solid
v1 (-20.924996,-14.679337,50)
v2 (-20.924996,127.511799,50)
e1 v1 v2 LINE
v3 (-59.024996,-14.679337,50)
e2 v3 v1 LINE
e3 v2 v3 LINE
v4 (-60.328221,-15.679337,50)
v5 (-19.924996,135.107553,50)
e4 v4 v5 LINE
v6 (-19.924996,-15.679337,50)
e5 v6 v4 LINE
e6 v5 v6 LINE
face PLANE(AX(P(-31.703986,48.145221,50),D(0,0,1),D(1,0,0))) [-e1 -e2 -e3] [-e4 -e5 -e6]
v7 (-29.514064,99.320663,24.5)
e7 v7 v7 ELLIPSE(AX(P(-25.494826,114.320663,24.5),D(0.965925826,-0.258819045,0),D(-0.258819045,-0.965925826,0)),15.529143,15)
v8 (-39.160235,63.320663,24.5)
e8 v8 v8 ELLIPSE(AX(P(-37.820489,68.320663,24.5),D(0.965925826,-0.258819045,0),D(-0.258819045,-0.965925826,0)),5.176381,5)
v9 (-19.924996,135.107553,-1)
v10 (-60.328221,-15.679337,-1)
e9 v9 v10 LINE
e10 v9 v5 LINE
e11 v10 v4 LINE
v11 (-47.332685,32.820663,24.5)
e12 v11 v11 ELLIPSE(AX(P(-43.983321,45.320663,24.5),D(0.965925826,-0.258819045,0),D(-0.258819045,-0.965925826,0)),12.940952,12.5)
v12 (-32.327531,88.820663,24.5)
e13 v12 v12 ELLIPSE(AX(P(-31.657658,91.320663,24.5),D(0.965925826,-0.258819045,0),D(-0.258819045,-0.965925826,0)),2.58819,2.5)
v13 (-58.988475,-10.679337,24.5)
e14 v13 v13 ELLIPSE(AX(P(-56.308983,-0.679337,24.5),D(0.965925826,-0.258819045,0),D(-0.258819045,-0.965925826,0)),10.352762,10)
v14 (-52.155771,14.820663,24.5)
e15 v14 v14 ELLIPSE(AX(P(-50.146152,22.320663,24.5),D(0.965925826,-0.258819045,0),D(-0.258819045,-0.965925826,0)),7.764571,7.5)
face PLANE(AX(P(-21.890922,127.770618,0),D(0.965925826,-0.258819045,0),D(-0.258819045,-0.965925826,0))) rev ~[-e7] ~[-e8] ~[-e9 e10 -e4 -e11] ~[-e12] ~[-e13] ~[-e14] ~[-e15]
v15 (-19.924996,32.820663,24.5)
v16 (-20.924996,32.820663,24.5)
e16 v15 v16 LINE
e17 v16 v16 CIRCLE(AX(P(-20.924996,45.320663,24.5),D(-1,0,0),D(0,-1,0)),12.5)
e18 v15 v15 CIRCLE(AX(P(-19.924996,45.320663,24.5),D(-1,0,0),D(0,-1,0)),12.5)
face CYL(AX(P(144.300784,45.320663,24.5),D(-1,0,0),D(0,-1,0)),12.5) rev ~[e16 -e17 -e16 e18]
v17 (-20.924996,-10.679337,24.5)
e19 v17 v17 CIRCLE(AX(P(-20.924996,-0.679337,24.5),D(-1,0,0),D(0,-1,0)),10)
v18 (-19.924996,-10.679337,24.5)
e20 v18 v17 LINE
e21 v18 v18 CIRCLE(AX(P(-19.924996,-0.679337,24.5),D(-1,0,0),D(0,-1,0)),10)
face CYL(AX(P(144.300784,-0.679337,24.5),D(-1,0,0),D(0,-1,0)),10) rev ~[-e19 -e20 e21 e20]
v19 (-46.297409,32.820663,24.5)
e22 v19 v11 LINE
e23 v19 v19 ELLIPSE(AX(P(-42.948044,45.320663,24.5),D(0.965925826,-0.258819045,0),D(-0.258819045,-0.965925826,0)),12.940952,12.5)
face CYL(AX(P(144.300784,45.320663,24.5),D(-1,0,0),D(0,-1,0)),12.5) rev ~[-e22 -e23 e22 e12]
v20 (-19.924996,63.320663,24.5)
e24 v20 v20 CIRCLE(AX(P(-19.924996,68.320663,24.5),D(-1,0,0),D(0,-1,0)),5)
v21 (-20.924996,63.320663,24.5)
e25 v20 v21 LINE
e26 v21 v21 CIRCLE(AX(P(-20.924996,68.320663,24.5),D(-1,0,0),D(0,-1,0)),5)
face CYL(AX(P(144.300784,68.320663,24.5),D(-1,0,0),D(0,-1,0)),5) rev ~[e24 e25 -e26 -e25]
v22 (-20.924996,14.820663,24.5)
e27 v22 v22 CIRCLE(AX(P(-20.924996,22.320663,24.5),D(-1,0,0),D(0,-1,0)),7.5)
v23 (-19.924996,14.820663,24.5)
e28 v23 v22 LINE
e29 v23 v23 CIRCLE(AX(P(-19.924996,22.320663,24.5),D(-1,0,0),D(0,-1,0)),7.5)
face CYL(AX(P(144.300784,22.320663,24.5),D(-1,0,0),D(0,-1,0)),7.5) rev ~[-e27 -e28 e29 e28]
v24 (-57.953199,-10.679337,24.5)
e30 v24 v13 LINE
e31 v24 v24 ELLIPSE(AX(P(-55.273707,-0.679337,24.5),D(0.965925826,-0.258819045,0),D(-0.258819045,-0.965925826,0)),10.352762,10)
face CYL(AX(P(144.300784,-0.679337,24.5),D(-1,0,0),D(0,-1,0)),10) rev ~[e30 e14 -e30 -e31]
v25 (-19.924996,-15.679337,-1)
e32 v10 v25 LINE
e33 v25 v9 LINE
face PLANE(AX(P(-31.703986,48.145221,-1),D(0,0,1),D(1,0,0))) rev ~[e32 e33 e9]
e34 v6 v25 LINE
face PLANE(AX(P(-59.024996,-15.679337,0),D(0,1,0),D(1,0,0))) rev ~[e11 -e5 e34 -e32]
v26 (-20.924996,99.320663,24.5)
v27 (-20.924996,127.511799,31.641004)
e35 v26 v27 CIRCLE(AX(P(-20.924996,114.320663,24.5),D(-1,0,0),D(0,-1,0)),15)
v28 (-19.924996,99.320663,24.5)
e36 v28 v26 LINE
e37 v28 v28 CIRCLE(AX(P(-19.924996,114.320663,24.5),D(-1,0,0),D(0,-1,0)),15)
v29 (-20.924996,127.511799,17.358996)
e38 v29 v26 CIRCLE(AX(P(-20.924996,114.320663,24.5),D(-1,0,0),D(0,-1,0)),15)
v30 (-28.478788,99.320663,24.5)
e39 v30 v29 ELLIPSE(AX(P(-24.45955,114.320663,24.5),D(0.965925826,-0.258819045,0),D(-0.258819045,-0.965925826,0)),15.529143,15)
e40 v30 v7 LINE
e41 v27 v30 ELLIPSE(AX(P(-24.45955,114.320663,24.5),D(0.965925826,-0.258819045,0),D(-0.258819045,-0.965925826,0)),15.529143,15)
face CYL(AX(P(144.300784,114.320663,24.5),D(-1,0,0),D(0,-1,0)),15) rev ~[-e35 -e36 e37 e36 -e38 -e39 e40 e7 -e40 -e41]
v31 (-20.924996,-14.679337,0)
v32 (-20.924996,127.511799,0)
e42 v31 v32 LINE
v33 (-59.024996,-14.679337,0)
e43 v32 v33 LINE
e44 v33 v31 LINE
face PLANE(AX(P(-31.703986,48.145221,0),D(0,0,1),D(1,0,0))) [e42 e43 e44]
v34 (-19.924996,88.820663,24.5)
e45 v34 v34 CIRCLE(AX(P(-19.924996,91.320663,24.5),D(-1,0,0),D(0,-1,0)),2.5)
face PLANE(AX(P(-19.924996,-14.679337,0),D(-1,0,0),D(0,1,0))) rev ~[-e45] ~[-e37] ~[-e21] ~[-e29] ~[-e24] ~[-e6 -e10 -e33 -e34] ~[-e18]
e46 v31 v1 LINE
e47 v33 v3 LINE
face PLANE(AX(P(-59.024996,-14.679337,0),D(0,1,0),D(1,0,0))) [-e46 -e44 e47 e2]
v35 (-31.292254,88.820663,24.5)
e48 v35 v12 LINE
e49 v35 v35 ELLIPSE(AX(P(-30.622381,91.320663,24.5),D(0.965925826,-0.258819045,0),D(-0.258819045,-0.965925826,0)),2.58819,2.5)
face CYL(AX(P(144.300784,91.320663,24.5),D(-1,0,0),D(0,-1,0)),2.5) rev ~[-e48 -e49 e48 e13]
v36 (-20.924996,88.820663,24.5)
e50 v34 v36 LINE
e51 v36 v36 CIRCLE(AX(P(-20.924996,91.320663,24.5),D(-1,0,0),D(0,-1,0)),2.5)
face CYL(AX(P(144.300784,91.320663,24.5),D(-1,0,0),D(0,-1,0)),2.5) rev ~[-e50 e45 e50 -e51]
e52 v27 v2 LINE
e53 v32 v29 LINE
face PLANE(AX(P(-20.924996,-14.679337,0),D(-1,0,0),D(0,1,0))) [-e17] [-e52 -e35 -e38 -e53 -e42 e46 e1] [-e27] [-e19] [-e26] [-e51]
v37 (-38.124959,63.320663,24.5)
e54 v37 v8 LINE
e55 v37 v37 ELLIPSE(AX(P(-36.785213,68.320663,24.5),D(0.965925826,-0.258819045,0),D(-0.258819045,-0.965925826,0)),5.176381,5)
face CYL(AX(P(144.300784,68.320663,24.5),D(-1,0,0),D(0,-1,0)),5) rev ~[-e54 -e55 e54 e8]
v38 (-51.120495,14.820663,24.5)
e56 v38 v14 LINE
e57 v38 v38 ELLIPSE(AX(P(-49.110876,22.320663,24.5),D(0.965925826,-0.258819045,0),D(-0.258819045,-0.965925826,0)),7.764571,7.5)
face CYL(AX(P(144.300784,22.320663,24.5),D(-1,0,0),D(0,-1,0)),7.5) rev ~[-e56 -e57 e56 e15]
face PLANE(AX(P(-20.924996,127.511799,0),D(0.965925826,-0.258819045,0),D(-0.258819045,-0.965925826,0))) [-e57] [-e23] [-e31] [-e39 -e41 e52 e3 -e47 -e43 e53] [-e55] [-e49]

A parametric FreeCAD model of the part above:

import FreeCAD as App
import Part
import Sketcher
from FreeCAD import Vector
Q = App.Units.Quantity


def faces_at(feature, points):
    """Names of the faces that lie closest to the given points."""
    faces = feature.Shape.Faces
    near = lambda p: min(range(len(faces)), key=lambda i: faces[i].distToShape(Part.Vertex(*p))[0])
    return sorted({f"Face{near(p) + 1}" for p in points})

doc = App.newDocument("Part")
params = doc.addObject("Spreadsheet::Sheet", "Params")
for row, (alias, value) in enumerate([
    ("sketch1_width", "38.1 mm"),
    ("pad1_length", "50 mm"),
    ("thickness_wall", "1 mm"),
    ("sketch2_diameter", "30 mm"),
    ("hole_diameter", "30 mm"),
    ("sketch3_diameter", "20 mm"),
    ("hole2_diameter", "20 mm"),
    ("sketch4_diameter", "25 mm"),
    ("hole3_diameter", "25 mm"),
    ("sketch5_diameter", "10 mm"),
    ("hole4_diameter", "10 mm"),
    ("sketch6_diameter", "5 mm"),
    ("hole5_diameter", "5 mm"),
    ("sketch7_diameter", "15 mm"),
    ("hole6_diameter", "15 mm"),
], start=1):
    params.set(f"A{row}", alias)
    params.set(f"B{row}", "=" + value)
    params.setAlias(f"B{row}", alias)

body = doc.addObject("PartDesign::Body", "Body")

sketch1 = body.newObject("Sketcher::SketchObject", "Sketch")
sketch1.AttachmentSupport = (doc.getObject("XY_Plane"), [""])
sketch1.MapMode = "FlatFace"
sketch1.addGeometry(Part.LineSegment(Vector(-21, -15, 0), Vector(-21, 128, 0)), False)
sketch1.addGeometry(Part.LineSegment(Vector(-21, 128, 0), Vector(-59, -15, 0)), False)
sketch1.addGeometry(Part.LineSegment(Vector(-59, -15, 0), Vector(-21, -15, 0)), False)
sketch1.addConstraint(Sketcher.Constraint("Coincident", 0, 2, 1, 1))
sketch1.addConstraint(Sketcher.Constraint("Coincident", 1, 2, 2, 1))
sketch1.addConstraint(Sketcher.Constraint("Coincident", 2, 2, 0, 1))
sketch1.addConstraint(Sketcher.Constraint("Vertical", 0))
sketch1.addConstraint(Sketcher.Constraint("Horizontal", 2))
sketch1.addConstraint(Sketcher.Constraint("Angle", 1, Q("-105 deg")))
sketch1.addConstraint(Sketcher.Constraint("DistanceX", 2, 1, 2, 2, 38.1))
sketch1.addConstraint(Sketcher.Constraint("DistanceY", -1, 1, 0, 2, 127.511799))
sketch1.addConstraint(Sketcher.Constraint("DistanceX", 0, 2, -1, 1, 20.924996))
sketch1.setExpression("Constraints[6]", "Params.sketch1_width")
pad1 = body.newObject("PartDesign::Pad", "Pad")
pad1.Profile = sketch1
pad1.setExpression("Length", "Params.pad1_length")
doc.recompute()

thickness = body.newObject("PartDesign::Thickness", "Thickness")
thickness.Base = (pad1, faces_at(pad1, [(-39.975, 56.416, 50)]))
thickness.setExpression("Value", "Params.thickness_wall")
thickness.Reversed = False
thickness.Join = "Intersection"

sketch2 = body.newObject("Sketcher::SketchObject", "Sketch001")
sketch2.AttachmentSupport = (doc.getObject("YZ_Plane"), [""])
sketch2.MapMode = "FlatFace"
sketch2.AttachmentOffset = App.Placement(Vector(0, 0, -19.924996), App.Rotation())
sketch2.addGeometry(Part.Circle(Vector(114, 24, 0), Vector(0, 0, 1), 15), False)
sketch2.addConstraint(Sketcher.Constraint("Diameter", 0, 30.0))
sketch2.addConstraint(Sketcher.Constraint("DistanceY", -1, 1, 0, 3, 24.5))
sketch2.addConstraint(Sketcher.Constraint("DistanceX", -1, 1, 0, 3, 114.320663))
sketch2.setExpression("Constraints[0]", "Params.sketch2_diameter")
doc.recompute()
hole = body.newObject("PartDesign::Hole", "Hole")
hole.Profile = sketch2
hole.ThreadType = "None"
hole.setExpression("Diameter", "Params.hole_diameter")
hole.DepthType = "ThroughAll"

sketch3 = body.newObject("Sketcher::SketchObject", "Sketch002")
sketch3.AttachmentSupport = (doc.getObject("YZ_Plane"), [""])
sketch3.MapMode = "FlatFace"
sketch3.AttachmentOffset = App.Placement(Vector(0, 0, -19.924996), App.Rotation())
sketch3.addGeometry(Part.Circle(Vector(-1, 24, 0), Vector(0, 0, 1), 10), False)
sketch3.addConstraint(Sketcher.Constraint("Diameter", 0, 20.0))
sketch3.addConstraint(Sketcher.Constraint("DistanceY", -1, 1, 0, 3, 24.5))
sketch3.addConstraint(Sketcher.Constraint("DistanceX", 0, 3, -1, 1, 0.679337))
sketch3.setExpression("Constraints[0]", "Params.sketch3_diameter")
doc.recompute()
hole2 = body.newObject("PartDesign::Hole", "Hole001")
hole2.Profile = sketch3
hole2.ThreadType = "None"
hole2.setExpression("Diameter", "Params.hole2_diameter")
hole2.DepthType = "ThroughAll"

sketch4 = body.newObject("Sketcher::SketchObject", "Sketch003")
sketch4.AttachmentSupport = (doc.getObject("YZ_Plane"), [""])
sketch4.MapMode = "FlatFace"
sketch4.AttachmentOffset = App.Placement(Vector(0, 0, -19.924996), App.Rotation())
sketch4.addGeometry(Part.Circle(Vector(45, 24, 0), Vector(0, 0, 1), 12), False)
sketch4.addConstraint(Sketcher.Constraint("Diameter", 0, 25.0))
sketch4.addConstraint(Sketcher.Constraint("DistanceY", -1, 1, 0, 3, 24.5))
sketch4.addConstraint(Sketcher.Constraint("DistanceX", -1, 1, 0, 3, 45.320663))
sketch4.setExpression("Constraints[0]", "Params.sketch4_diameter")
doc.recompute()
hole3 = body.newObject("PartDesign::Hole", "Hole002")
hole3.Profile = sketch4
hole3.ThreadType = "None"
hole3.setExpression("Diameter", "Params.hole3_diameter")
hole3.DepthType = "ThroughAll"

sketch5 = body.newObject("Sketcher::SketchObject", "Sketch004")
sketch5.AttachmentSupport = (doc.getObject("YZ_Plane"), [""])
sketch5.MapMode = "FlatFace"
sketch5.AttachmentOffset = App.Placement(Vector(0, 0, -19.924996), App.Rotation())
sketch5.addGeometry(Part.Circle(Vector(68, 24, 0), Vector(0, 0, 1), 5), False)
sketch5.addConstraint(Sketcher.Constraint("Diameter", 0, 10.0))
sketch5.addConstraint(Sketcher.Constraint("DistanceY", -1, 1, 0, 3, 24.5))
sketch5.addConstraint(Sketcher.Constraint("DistanceX", -1, 1, 0, 3, 68.320663))
sketch5.setExpression("Constraints[0]", "Params.sketch5_diameter")
doc.recompute()
hole4 = body.newObject("PartDesign::Hole", "Hole003")
hole4.Profile = sketch5
hole4.ThreadType = "None"
hole4.setExpression("Diameter", "Params.hole4_diameter")
hole4.DepthType = "ThroughAll"

sketch6 = body.newObject("Sketcher::SketchObject", "Sketch005")
sketch6.AttachmentSupport = (doc.getObject("YZ_Plane"), [""])
sketch6.MapMode = "FlatFace"
sketch6.AttachmentOffset = App.Placement(Vector(0, 0, -19.924996), App.Rotation())
sketch6.addGeometry(Part.Circle(Vector(91.3, 24.5, 0), Vector(0, 0, 1), 2.5), False)
sketch6.addConstraint(Sketcher.Constraint("Diameter", 0, 5.0))
sketch6.addConstraint(Sketcher.Constraint("DistanceY", -1, 1, 0, 3, 24.5))
sketch6.addConstraint(Sketcher.Constraint("DistanceX", -1, 1, 0, 3, 91.320663))
sketch6.setExpression("Constraints[0]", "Params.sketch6_diameter")
doc.recompute()
hole5 = body.newObject("PartDesign::Hole", "Hole004")
hole5.Profile = sketch6
hole5.ThreadType = "None"
hole5.setExpression("Diameter", "Params.hole5_diameter")
hole5.DepthType = "ThroughAll"

sketch7 = body.newObject("Sketcher::SketchObject", "Sketch006")
sketch7.AttachmentSupport = (doc.getObject("YZ_Plane"), [""])
sketch7.MapMode = "FlatFace"
sketch7.AttachmentOffset = App.Placement(Vector(0, 0, -19.924996), App.Rotation())
sketch7.addGeometry(Part.Circle(Vector(22, 24, 0), Vector(0, 0, 1), 8), False)
sketch7.addConstraint(Sketcher.Constraint("Diameter", 0, 15.0))
sketch7.addConstraint(Sketcher.Constraint("DistanceY", -1, 1, 0, 3, 24.5))
sketch7.addConstraint(Sketcher.Constraint("DistanceX", -1, 1, 0, 3, 22.320663))
sketch7.setExpression("Constraints[0]", "Params.sketch7_diameter")
doc.recompute()
hole6 = body.newObject("PartDesign::Hole", "Hole005")
hole6.Profile = sketch7
hole6.ThreadType = "None"
hole6.setExpression("Diameter", "Params.hole6_diameter")
hole6.DepthType = "ThroughAll"

doc.recompute()
